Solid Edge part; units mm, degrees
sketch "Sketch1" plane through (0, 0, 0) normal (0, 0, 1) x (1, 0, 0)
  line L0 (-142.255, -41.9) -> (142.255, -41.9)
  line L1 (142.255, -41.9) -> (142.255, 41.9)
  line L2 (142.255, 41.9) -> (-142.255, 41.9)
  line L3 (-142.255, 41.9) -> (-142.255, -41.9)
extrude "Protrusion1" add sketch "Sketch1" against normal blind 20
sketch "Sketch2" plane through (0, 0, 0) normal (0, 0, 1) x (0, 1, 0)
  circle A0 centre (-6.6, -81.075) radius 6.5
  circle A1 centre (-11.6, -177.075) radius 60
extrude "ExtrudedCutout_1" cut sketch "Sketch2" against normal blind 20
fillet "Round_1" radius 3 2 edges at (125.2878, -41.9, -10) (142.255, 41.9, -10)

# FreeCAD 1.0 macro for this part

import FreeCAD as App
import Part
import Sketcher
from FreeCAD import Vector


def edges_at(feature, points):
    """Names of the edges that pass closest to the given points."""
    edges = feature.Shape.Edges
    near = lambda p: min(range(len(edges)), key=lambda i: edges[i].distToShape(Part.Vertex(*p))[0])
    return sorted({f"Edge{near(p) + 1}" for p in points})

doc = App.newDocument("Part")
params = doc.addObject("Spreadsheet::Sheet", "Params")
for row, (alias, value) in enumerate([
    ("sketch1_height", "83.8 mm"),
    ("sketch1_width", "284.51 mm"),
    ("pad1_length", "20 mm"),
    ("sketch2_diameter", "13 mm"),
    ("sketch2_diameter2", "120 mm"),
    ("pocket1_length", "20 mm"),
    ("fillet_radius", "3 mm"),
], start=1):
    params.set(f"A{row}", alias)
    params.set(f"B{row}", "=" + value)
    params.setAlias(f"B{row}", alias)

body = doc.addObject("PartDesign::Body", "Body")

# Sketch on XY plane
sketch1 = body.newObject("Sketcher::SketchObject", "Sketch")
sketch1.AttachmentSupport = (doc.getObject("XY_Plane"), [""])
sketch1.MapMode = "FlatFace"
sketch1.addGeometry([
    Part.LineSegment(Vector(-142, 42, 0), Vector(-142, -42, 0)),
    Part.LineSegment(Vector(-142, -42, 0), Vector(142, -42, 0)),
    Part.LineSegment(Vector(142, -42, 0), Vector(142, 42, 0)),
    Part.LineSegment(Vector(142, 42, 0), Vector(-142, 42, 0)),
], False)
sketch1.addConstraint([
    Sketcher.Constraint("Coincident", 0, 2, 1, 1),
    Sketcher.Constraint("Coincident", 1, 2, 2, 1),
    Sketcher.Constraint("Coincident", 2, 2, 3, 1),
    Sketcher.Constraint("Coincident", 3, 2, 0, 1),
    Sketcher.Constraint("Vertical", 0),
    Sketcher.Constraint("Horizontal", 1),
    Sketcher.Constraint("Vertical", 2),
    Sketcher.Constraint("Horizontal", 3),
    Sketcher.Constraint("Symmetric", 0, 2, 2, 2, -1, 1),
    Sketcher.Constraint("DistanceY", 0, 2, 0, 1, 83.8),
    Sketcher.Constraint("DistanceX", 1, 1, 1, 2, 284.51),
])
sketch1.setExpression("Constraints[9]", "Params.sketch1_height")
sketch1.setExpression("Constraints[10]", "Params.sketch1_width")
pad1 = body.newObject("PartDesign::Pad", "Pad")
pad1.Profile = sketch1
pad1.setExpression("Length", "Params.pad1_length")
pad1.Reversed = True

# Sketch on XY plane
sketch2 = body.newObject("Sketcher::SketchObject", "Sketch001")
sketch2.AttachmentSupport = (doc.getObject("XY_Plane"), [""])
sketch2.MapMode = "FlatFace"
sketch2.addGeometry([
    Part.Circle(Vector(81, -7, 0), Vector(0, 0, 1), 6),
    Part.Circle(Vector(177, -12, 0), Vector(0, 0, 1), 60),
], False)
sketch2.addConstraint([
    Sketcher.Constraint("Diameter", 0, 13.0),
    Sketcher.Constraint("Diameter", 1, 120.0),
    Sketcher.Constraint("DistanceX", 0, 3, 1, 3, 96.0),
    Sketcher.Constraint("DistanceY", 1, 3, 0, 3, 5.0),
    Sketcher.Constraint("DistanceY", 0, 3, -1, 1, 6.6),
    Sketcher.Constraint("DistanceX", -1, 1, 0, 3, 81.075),
])
sketch2.setExpression("Constraints[0]", "Params.sketch2_diameter")
sketch2.setExpression("Constraints[1]", "Params.sketch2_diameter2")
pocket1 = body.newObject("PartDesign::Pocket", "Pocket")
pocket1.Profile = sketch2
pocket1.setExpression("Length", "Params.pocket1_length")
doc.recompute()

fillet = body.newObject("PartDesign::Fillet", "Fillet")
fillet.Base = (pocket1, edges_at(pocket1, [(125.288, -41.9, -10), (142.255, 41.9, -10)]))
fillet.setExpression("Radius", "Params.fillet_radius")

doc.recompute()
